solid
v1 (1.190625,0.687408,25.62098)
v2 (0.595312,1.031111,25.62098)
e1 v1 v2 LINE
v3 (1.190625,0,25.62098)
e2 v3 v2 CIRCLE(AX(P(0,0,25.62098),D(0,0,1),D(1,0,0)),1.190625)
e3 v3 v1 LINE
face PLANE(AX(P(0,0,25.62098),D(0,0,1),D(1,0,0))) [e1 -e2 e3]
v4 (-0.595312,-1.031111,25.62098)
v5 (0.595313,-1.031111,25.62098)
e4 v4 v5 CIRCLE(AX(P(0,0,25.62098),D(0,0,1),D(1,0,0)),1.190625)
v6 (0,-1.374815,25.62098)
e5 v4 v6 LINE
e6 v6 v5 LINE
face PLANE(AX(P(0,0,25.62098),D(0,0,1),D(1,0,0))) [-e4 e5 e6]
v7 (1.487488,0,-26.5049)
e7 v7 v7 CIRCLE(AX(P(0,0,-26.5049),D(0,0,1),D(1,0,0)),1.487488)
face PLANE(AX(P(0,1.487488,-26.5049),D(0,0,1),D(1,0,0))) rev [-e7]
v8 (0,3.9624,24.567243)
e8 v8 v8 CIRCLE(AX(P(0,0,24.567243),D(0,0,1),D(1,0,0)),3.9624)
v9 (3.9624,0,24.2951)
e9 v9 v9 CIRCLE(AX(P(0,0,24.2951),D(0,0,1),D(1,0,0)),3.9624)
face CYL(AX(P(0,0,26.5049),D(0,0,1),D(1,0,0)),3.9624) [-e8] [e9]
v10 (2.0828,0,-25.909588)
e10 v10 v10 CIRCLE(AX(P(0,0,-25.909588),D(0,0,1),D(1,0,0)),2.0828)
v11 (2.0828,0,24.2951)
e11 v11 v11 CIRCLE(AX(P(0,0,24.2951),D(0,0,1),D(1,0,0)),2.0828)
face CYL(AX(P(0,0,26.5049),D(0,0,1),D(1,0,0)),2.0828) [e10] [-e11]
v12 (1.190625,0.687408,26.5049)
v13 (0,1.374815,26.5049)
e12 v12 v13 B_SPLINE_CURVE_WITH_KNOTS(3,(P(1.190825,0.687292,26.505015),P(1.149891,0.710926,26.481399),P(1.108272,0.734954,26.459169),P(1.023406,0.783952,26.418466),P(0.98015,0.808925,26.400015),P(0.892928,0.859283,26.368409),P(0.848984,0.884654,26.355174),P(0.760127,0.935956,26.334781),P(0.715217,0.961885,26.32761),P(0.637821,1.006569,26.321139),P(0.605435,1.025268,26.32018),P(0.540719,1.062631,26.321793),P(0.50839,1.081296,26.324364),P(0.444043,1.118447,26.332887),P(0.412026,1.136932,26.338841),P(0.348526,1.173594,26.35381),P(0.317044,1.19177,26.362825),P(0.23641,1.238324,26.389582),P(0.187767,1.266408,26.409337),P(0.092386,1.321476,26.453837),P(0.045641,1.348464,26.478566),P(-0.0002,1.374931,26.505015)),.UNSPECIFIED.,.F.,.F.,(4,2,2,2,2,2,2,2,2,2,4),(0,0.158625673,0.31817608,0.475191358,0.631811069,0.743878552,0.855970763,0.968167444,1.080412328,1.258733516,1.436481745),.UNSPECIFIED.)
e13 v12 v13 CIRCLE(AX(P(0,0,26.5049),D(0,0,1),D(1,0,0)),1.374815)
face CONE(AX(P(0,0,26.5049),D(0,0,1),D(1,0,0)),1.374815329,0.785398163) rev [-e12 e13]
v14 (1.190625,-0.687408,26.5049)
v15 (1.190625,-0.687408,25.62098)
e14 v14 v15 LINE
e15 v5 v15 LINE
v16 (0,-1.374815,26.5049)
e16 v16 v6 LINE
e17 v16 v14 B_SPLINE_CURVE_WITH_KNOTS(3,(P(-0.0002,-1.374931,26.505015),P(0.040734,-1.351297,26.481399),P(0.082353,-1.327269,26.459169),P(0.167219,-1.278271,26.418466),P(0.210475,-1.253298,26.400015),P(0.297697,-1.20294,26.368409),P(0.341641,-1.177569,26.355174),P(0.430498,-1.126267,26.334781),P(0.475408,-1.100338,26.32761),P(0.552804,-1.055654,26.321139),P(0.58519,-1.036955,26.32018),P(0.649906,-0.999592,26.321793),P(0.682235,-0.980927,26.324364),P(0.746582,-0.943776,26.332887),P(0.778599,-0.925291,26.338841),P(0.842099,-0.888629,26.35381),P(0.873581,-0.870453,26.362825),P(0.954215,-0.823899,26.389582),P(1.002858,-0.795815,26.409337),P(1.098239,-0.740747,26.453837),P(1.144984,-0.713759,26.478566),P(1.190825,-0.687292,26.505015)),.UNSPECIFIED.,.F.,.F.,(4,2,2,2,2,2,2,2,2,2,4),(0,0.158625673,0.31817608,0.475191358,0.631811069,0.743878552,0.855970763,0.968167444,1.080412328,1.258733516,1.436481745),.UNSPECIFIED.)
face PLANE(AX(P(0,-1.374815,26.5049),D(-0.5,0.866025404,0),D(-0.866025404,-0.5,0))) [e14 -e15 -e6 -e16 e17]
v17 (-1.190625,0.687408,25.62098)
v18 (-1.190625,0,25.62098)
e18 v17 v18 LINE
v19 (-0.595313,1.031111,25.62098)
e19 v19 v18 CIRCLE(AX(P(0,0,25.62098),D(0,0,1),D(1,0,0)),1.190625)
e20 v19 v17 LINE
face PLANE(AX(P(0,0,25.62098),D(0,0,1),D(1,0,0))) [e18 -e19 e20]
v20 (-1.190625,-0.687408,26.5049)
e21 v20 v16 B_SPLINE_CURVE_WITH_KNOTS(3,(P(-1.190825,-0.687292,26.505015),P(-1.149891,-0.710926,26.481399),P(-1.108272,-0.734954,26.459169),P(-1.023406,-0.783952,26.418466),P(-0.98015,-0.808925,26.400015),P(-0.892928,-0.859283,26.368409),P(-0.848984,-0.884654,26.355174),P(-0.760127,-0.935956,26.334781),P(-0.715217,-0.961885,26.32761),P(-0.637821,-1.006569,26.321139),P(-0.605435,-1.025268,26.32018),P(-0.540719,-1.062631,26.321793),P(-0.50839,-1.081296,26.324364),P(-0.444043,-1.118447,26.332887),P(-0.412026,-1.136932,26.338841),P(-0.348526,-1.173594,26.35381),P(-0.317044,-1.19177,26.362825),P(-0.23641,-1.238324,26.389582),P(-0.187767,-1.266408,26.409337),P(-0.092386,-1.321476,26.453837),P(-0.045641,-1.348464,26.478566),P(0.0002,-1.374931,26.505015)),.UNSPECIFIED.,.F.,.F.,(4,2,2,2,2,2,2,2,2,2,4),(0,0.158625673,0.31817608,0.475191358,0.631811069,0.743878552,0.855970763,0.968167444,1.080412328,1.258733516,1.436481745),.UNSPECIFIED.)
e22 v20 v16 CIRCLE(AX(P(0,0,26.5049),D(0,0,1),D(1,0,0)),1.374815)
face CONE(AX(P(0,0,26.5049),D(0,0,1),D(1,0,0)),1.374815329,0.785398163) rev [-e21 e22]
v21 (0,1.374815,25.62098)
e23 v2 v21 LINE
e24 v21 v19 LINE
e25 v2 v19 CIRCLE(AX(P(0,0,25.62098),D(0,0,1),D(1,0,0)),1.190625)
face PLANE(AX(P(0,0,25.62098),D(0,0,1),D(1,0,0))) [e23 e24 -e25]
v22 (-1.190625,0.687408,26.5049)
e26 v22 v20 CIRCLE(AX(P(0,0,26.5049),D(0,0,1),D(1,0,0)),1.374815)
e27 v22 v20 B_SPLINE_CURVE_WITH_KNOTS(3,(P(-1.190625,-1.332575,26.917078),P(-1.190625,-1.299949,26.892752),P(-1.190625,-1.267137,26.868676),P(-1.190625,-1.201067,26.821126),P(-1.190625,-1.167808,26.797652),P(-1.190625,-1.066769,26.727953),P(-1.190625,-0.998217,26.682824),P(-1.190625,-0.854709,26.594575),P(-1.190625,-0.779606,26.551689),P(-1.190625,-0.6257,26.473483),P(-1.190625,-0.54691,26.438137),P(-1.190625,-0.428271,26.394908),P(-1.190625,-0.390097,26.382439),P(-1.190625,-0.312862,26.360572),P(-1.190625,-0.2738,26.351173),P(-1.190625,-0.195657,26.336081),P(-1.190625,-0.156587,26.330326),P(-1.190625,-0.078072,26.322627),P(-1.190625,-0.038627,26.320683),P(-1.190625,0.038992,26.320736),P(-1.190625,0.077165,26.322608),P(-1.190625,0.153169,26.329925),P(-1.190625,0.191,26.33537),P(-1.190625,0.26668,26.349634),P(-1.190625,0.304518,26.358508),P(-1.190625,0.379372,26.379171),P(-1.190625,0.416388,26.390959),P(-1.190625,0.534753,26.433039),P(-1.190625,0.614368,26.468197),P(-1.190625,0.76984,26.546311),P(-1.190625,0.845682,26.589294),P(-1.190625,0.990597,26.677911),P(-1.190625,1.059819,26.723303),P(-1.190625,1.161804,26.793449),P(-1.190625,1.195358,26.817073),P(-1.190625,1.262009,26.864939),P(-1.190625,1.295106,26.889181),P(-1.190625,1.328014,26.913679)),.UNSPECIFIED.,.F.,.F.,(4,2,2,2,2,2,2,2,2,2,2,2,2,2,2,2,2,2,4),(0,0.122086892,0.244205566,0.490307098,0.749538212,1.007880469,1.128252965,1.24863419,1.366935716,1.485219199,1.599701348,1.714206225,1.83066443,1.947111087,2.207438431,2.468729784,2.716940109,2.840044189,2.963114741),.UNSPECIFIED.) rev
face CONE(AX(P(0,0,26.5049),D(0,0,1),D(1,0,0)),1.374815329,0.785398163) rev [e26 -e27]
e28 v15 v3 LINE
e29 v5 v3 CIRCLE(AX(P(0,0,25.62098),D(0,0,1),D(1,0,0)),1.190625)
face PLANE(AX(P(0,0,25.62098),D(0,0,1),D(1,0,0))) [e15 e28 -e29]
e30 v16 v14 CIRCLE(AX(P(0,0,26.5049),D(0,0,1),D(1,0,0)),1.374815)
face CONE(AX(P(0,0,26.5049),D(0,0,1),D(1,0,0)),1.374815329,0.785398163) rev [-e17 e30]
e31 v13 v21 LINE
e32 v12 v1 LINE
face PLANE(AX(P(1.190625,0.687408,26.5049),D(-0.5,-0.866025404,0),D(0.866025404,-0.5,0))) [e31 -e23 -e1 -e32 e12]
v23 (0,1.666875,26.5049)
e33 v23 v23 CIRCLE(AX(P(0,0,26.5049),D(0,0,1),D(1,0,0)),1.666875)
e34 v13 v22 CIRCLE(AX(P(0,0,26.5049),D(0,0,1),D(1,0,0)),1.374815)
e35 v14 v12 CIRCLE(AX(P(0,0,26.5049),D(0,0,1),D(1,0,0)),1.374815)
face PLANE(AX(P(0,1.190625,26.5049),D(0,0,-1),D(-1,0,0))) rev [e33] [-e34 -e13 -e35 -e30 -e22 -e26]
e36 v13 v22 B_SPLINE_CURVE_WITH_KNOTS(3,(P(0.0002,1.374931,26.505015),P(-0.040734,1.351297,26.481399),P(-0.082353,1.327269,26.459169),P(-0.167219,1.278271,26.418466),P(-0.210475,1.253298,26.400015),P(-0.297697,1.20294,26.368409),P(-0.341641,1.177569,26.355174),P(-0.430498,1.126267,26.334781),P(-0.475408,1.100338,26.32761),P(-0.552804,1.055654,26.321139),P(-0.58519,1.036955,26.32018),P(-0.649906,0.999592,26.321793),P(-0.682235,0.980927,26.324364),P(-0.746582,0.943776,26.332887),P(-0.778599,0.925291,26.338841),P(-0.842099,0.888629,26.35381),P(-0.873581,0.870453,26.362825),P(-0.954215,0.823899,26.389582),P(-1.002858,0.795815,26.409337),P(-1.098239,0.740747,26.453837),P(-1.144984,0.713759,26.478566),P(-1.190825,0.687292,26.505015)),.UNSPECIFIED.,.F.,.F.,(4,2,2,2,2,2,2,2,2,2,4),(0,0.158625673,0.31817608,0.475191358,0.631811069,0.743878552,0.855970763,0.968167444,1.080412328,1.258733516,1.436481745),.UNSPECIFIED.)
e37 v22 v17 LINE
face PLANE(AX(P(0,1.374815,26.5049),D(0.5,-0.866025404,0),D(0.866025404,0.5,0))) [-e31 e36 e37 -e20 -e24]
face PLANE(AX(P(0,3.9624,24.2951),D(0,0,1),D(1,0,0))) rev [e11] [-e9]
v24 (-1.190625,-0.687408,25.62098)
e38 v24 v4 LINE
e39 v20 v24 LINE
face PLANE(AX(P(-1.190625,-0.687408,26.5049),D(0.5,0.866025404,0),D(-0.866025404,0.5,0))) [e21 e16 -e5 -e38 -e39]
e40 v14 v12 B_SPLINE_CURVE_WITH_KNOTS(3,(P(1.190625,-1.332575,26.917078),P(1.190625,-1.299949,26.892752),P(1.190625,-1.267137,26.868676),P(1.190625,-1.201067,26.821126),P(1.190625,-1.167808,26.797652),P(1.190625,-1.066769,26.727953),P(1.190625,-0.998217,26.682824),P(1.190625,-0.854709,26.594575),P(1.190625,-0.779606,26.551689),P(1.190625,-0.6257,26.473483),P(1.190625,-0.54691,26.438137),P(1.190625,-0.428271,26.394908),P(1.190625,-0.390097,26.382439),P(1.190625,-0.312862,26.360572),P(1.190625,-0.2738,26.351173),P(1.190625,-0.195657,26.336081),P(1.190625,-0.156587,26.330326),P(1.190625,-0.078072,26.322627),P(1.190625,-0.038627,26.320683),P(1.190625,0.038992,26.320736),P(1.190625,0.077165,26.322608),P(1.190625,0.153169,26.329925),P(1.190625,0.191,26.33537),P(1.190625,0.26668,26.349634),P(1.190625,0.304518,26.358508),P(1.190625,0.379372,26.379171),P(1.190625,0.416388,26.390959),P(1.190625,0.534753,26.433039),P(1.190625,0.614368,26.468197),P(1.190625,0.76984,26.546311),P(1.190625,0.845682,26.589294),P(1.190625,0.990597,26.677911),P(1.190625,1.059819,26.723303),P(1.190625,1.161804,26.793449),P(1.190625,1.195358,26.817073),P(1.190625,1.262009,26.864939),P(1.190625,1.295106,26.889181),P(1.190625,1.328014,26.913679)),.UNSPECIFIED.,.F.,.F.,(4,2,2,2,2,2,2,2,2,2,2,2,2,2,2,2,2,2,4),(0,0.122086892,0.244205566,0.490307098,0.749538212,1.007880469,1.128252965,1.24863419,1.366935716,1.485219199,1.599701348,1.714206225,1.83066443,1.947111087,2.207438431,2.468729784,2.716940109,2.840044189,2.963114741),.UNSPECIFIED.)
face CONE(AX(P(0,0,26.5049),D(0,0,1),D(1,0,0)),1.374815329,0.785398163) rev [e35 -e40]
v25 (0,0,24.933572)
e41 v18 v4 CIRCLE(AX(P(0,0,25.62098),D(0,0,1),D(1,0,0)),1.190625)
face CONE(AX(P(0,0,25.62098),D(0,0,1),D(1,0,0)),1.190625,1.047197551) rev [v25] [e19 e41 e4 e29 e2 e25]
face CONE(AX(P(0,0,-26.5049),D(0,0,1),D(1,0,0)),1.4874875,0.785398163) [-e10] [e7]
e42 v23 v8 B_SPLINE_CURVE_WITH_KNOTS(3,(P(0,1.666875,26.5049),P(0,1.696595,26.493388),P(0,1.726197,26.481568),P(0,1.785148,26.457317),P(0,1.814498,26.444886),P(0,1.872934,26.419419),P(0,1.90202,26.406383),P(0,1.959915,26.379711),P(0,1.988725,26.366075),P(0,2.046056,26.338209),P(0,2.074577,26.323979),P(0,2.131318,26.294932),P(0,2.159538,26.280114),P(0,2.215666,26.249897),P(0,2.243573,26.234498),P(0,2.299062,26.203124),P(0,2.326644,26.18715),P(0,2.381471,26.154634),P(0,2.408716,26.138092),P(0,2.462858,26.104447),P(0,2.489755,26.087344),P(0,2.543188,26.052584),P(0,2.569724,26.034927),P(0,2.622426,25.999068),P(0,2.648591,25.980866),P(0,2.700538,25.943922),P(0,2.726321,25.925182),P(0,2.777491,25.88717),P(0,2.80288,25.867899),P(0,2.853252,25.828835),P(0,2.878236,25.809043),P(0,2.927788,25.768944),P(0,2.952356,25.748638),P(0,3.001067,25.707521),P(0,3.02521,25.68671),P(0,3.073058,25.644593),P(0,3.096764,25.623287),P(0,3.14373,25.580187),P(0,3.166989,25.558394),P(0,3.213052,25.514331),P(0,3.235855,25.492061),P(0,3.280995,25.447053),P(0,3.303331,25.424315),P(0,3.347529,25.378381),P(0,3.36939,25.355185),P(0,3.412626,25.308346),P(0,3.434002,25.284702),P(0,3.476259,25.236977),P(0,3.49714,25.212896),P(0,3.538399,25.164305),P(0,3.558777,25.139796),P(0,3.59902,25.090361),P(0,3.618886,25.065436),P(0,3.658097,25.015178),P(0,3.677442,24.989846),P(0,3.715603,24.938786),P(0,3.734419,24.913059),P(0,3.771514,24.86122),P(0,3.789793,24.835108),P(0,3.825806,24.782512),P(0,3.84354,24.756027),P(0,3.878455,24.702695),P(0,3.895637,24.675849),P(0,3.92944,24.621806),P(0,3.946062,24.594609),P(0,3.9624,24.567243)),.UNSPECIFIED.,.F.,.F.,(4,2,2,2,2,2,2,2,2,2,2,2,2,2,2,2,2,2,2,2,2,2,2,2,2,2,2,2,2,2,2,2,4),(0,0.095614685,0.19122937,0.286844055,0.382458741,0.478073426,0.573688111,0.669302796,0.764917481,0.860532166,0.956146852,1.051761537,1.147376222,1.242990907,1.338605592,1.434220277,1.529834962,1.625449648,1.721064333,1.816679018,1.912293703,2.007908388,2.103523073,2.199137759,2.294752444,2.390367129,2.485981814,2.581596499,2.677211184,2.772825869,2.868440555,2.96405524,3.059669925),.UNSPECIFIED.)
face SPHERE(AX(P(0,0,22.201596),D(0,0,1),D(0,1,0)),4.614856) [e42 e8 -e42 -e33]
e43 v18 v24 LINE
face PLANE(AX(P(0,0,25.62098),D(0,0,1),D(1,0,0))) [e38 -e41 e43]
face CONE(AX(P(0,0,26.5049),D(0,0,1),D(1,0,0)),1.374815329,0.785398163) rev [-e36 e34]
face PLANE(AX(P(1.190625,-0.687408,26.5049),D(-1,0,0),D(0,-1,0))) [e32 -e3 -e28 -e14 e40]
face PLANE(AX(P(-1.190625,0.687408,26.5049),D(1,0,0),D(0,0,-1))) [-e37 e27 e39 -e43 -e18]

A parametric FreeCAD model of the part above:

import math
import FreeCAD as App
import Part
import Sketcher
Q = App.Units.Quantity

doc = App.newDocument("Part")
params = doc.addObject("Spreadsheet::Sheet", "Params")
for row, (alias, value) in enumerate([
    ("sketch1_width", "0.074 in"),
    ("revolution_angle", "360 deg"),
    ("groove_angle", "360 deg"),
], start=1):
    params.set(f"A{row}", alias)
    params.set(f"B{row}", "=" + value)
    params.setAlias(f"B{row}", alias)

body = doc.addObject("PartDesign::Body", "Body")

sketch1 = body.newObject("Sketcher::SketchObject", "Sketch")
sketch1.AttachmentSupport = (doc.getObject("YZ_Plane"), [""])
sketch1.MapMode = "FlatFace"
sketch1.addGeometry([
    Part.LineSegment(App.Vector(1.67, 26.5, 0), App.Vector(1.19, 26.5, 0)),
    Part.LineSegment(App.Vector(1.19, 26.5, 0), App.Vector(1.19, 25.62, 0)),
    Part.LineSegment(App.Vector(1.19, 25.62, 0), App.Vector(0, 24.93, 0)),
    Part.LineSegment(App.Vector(0, 24.93, 0), App.Vector(0, -26.5, 0)),
    Part.LineSegment(App.Vector(0, -26.5, 0), App.Vector(1.49, -26.5, 0)),
    Part.LineSegment(App.Vector(1.49, -26.5, 0), App.Vector(2.08, -25.91, 0)),
    Part.LineSegment(App.Vector(2.08, -25.91, 0), App.Vector(2.08, 24.3, 0)),
    Part.LineSegment(App.Vector(2.08, 24.3, 0), App.Vector(3.96, 24.3, 0)),
    Part.LineSegment(App.Vector(3.96, 24.3, 0), App.Vector(3.96, 24.57, 0)),
    Part.ArcOfCircle(Part.Circle(App.Vector(0, 22.2, 0), App.Vector(0, 0, 1), 4.61), math.radians(31), math.radians(69)),
], False)
sketch1.addConstraint([
    Sketcher.Constraint("Coincident", 0, 2, 1, 1),
    Sketcher.Constraint("Coincident", 1, 2, 2, 1),
    Sketcher.Constraint("Coincident", 2, 2, 3, 1),
    Sketcher.Constraint("Coincident", 3, 2, 4, 1),
    Sketcher.Constraint("Coincident", 4, 2, 5, 1),
    Sketcher.Constraint("Coincident", 5, 2, 6, 1),
    Sketcher.Constraint("Coincident", 6, 2, 7, 1),
    Sketcher.Constraint("Coincident", 7, 2, 8, 1),
    Sketcher.Constraint("Coincident", 8, 2, 9, 1),
    Sketcher.Constraint("Coincident", 9, 2, 0, 1),
    Sketcher.Constraint("Horizontal", 0),
    Sketcher.Constraint("Vertical", 1),
    Sketcher.Constraint("Vertical", 3),
    Sketcher.Constraint("Horizontal", 4),
    Sketcher.Constraint("Vertical", 6),
    Sketcher.Constraint("Horizontal", 7),
    Sketcher.Constraint("Vertical", 8),
    Sketcher.Constraint("PointOnObject", 9, 3, -2),
    Sketcher.Constraint("PointOnObject", 2, 2, -2),
    Sketcher.Constraint("Angle", 2, Q("-150 deg")),
    Sketcher.Constraint("Angle", 5, Q("45 deg")),
    Sketcher.Constraint("DistanceX", 7, 1, 7, 2, Q("0.074 in")),
    Sketcher.Constraint("DistanceY", 1, 2, 1, 1, Q("0.0348 in")),
    Sketcher.Constraint("DistanceX", -1, 1, 0, 2, Q("0.046875 in")),
    Sketcher.Constraint("DistanceX", -1, 1, 5, 2, Q("0.082 in")),
    Sketcher.Constraint("DistanceY", 3, 2, 0, 2, Q("2.087 in")),
    Sketcher.Constraint("DistanceY", 6, 2, 0, 2, Q("0.087 in")),
    Sketcher.Constraint("DistanceY", -1, 1, 0, 2, Q("1.0435 in")),
    Sketcher.Constraint("Radius", 9, 4.614856),
    Sketcher.Constraint("Distance", 5, 0.841899),
    Sketcher.Constraint("DistanceX", 0, 2, 0, 1, 0.47625),
])
sketch1.setExpression("Constraints[21]", "Params.sketch1_width")
revolution = body.newObject("PartDesign::Revolution", "Revolution")
revolution.Profile = sketch1
revolution.ReferenceAxis = (sketch1, ["V_Axis"])
revolution.setExpression("Angle", "Params.revolution_angle")

sketch2 = body.newObject("Sketcher::SketchObject", "Sketch001")
sketch2.AttachmentSupport = (doc.getObject("XY_Plane"), [""])
sketch2.MapMode = "FlatFace"
sketch2.AttachmentOffset = App.Placement(App.Vector(0, 0, 1.0087 * 25.4), App.Rotation())
sketch2.addGeometry([
    Part.LineSegment(App.Vector(0, 1.4, 0), App.Vector(-1.2, 0.7, 0)),
    Part.LineSegment(App.Vector(-1.2, 0.7, 0), App.Vector(-1.2, -0.7, 0)),
    Part.LineSegment(App.Vector(-1.2, -0.7, 0), App.Vector(0, -1.4, 0)),
    Part.LineSegment(App.Vector(0, -1.4, 0), App.Vector(1.2, -0.7, 0)),
    Part.LineSegment(App.Vector(1.2, -0.7, 0), App.Vector(1.2, 0.7, 0)),
    Part.LineSegment(App.Vector(1.2, 0.7, 0), App.Vector(0, 1.4, 0)),
], False)
sketch2.addConstraint([
    Sketcher.Constraint("Coincident", 0, 2, 1, 1),
    Sketcher.Constraint("Coincident", 1, 2, 2, 1),
    Sketcher.Constraint("Coincident", 2, 2, 3, 1),
    Sketcher.Constraint("Coincident", 3, 2, 4, 1),
    Sketcher.Constraint("Coincident", 4, 2, 5, 1),
    Sketcher.Constraint("Coincident", 5, 2, 0, 1),
    Sketcher.Constraint("Vertical", 1),
    Sketcher.Constraint("Vertical", 4),
    Sketcher.Constraint("Symmetric", 0, 2, 3, 2, -1, 1),
    Sketcher.Constraint("Symmetric", 2, 2, 5, 2, -1, 1),
    Sketcher.Constraint("PointOnObject", 2, 2, -2),
    Sketcher.Constraint("Parallel", 2, 5),
    Sketcher.Constraint("Horizontal", 1, 2, 3, 2),
    Sketcher.Constraint("Angle", 0, Q("-150 deg")),
    Sketcher.Constraint("DistanceX", 0, 2, -1, 1, Q("0.046875 in")),
    Sketcher.Constraint("DistanceY", 1, 2, 1, 1, 1.374815),
])
pocket1 = body.newObject("PartDesign::Pocket", "Pocket")
pocket1.Profile = sketch2
pocket1.Type = "ThroughAll"
pocket1.Reversed = True

sketch3 = body.newObject("Sketcher::SketchObject", "Sketch002")
sketch3.AttachmentSupport = (doc.getObject("YZ_Plane"), [""])
sketch3.MapMode = "FlatFace"
sketch3.addGeometry([
    Part.LineSegment(App.Vector(0, 26.5, 0), App.Vector(-1.4, 26.5, 0)),
    Part.LineSegment(App.Vector(-1.4, 26.5, 0), App.Vector(0, 25.1, 0)),
    Part.LineSegment(App.Vector(0, 25.1, 0), App.Vector(0, 26.5, 0)),
], False)
sketch3.addConstraint([
    Sketcher.Constraint("Coincident", 0, 2, 1, 1),
    Sketcher.Constraint("Coincident", 1, 2, 2, 1),
    Sketcher.Constraint("Coincident", 2, 2, 0, 1),
    Sketcher.Constraint("Horizontal", 0),
    Sketcher.Constraint("Vertical", 2),
    Sketcher.Constraint("PointOnObject", 1, 2, -2),
    Sketcher.Constraint("Equal", 0, 2),
    Sketcher.Constraint("DistanceY", -1, 1, 0, 2, Q("1.0435 in")),
    Sketcher.Constraint("DistanceX", 0, 2, 0, 1, 1.374815),
])
groove = body.newObject("PartDesign::Groove", "Groove")
groove.Profile = sketch3
groove.ReferenceAxis = (sketch3, ["V_Axis"])
groove.setExpression("Angle", "Params.groove_angle")

doc.recompute()
